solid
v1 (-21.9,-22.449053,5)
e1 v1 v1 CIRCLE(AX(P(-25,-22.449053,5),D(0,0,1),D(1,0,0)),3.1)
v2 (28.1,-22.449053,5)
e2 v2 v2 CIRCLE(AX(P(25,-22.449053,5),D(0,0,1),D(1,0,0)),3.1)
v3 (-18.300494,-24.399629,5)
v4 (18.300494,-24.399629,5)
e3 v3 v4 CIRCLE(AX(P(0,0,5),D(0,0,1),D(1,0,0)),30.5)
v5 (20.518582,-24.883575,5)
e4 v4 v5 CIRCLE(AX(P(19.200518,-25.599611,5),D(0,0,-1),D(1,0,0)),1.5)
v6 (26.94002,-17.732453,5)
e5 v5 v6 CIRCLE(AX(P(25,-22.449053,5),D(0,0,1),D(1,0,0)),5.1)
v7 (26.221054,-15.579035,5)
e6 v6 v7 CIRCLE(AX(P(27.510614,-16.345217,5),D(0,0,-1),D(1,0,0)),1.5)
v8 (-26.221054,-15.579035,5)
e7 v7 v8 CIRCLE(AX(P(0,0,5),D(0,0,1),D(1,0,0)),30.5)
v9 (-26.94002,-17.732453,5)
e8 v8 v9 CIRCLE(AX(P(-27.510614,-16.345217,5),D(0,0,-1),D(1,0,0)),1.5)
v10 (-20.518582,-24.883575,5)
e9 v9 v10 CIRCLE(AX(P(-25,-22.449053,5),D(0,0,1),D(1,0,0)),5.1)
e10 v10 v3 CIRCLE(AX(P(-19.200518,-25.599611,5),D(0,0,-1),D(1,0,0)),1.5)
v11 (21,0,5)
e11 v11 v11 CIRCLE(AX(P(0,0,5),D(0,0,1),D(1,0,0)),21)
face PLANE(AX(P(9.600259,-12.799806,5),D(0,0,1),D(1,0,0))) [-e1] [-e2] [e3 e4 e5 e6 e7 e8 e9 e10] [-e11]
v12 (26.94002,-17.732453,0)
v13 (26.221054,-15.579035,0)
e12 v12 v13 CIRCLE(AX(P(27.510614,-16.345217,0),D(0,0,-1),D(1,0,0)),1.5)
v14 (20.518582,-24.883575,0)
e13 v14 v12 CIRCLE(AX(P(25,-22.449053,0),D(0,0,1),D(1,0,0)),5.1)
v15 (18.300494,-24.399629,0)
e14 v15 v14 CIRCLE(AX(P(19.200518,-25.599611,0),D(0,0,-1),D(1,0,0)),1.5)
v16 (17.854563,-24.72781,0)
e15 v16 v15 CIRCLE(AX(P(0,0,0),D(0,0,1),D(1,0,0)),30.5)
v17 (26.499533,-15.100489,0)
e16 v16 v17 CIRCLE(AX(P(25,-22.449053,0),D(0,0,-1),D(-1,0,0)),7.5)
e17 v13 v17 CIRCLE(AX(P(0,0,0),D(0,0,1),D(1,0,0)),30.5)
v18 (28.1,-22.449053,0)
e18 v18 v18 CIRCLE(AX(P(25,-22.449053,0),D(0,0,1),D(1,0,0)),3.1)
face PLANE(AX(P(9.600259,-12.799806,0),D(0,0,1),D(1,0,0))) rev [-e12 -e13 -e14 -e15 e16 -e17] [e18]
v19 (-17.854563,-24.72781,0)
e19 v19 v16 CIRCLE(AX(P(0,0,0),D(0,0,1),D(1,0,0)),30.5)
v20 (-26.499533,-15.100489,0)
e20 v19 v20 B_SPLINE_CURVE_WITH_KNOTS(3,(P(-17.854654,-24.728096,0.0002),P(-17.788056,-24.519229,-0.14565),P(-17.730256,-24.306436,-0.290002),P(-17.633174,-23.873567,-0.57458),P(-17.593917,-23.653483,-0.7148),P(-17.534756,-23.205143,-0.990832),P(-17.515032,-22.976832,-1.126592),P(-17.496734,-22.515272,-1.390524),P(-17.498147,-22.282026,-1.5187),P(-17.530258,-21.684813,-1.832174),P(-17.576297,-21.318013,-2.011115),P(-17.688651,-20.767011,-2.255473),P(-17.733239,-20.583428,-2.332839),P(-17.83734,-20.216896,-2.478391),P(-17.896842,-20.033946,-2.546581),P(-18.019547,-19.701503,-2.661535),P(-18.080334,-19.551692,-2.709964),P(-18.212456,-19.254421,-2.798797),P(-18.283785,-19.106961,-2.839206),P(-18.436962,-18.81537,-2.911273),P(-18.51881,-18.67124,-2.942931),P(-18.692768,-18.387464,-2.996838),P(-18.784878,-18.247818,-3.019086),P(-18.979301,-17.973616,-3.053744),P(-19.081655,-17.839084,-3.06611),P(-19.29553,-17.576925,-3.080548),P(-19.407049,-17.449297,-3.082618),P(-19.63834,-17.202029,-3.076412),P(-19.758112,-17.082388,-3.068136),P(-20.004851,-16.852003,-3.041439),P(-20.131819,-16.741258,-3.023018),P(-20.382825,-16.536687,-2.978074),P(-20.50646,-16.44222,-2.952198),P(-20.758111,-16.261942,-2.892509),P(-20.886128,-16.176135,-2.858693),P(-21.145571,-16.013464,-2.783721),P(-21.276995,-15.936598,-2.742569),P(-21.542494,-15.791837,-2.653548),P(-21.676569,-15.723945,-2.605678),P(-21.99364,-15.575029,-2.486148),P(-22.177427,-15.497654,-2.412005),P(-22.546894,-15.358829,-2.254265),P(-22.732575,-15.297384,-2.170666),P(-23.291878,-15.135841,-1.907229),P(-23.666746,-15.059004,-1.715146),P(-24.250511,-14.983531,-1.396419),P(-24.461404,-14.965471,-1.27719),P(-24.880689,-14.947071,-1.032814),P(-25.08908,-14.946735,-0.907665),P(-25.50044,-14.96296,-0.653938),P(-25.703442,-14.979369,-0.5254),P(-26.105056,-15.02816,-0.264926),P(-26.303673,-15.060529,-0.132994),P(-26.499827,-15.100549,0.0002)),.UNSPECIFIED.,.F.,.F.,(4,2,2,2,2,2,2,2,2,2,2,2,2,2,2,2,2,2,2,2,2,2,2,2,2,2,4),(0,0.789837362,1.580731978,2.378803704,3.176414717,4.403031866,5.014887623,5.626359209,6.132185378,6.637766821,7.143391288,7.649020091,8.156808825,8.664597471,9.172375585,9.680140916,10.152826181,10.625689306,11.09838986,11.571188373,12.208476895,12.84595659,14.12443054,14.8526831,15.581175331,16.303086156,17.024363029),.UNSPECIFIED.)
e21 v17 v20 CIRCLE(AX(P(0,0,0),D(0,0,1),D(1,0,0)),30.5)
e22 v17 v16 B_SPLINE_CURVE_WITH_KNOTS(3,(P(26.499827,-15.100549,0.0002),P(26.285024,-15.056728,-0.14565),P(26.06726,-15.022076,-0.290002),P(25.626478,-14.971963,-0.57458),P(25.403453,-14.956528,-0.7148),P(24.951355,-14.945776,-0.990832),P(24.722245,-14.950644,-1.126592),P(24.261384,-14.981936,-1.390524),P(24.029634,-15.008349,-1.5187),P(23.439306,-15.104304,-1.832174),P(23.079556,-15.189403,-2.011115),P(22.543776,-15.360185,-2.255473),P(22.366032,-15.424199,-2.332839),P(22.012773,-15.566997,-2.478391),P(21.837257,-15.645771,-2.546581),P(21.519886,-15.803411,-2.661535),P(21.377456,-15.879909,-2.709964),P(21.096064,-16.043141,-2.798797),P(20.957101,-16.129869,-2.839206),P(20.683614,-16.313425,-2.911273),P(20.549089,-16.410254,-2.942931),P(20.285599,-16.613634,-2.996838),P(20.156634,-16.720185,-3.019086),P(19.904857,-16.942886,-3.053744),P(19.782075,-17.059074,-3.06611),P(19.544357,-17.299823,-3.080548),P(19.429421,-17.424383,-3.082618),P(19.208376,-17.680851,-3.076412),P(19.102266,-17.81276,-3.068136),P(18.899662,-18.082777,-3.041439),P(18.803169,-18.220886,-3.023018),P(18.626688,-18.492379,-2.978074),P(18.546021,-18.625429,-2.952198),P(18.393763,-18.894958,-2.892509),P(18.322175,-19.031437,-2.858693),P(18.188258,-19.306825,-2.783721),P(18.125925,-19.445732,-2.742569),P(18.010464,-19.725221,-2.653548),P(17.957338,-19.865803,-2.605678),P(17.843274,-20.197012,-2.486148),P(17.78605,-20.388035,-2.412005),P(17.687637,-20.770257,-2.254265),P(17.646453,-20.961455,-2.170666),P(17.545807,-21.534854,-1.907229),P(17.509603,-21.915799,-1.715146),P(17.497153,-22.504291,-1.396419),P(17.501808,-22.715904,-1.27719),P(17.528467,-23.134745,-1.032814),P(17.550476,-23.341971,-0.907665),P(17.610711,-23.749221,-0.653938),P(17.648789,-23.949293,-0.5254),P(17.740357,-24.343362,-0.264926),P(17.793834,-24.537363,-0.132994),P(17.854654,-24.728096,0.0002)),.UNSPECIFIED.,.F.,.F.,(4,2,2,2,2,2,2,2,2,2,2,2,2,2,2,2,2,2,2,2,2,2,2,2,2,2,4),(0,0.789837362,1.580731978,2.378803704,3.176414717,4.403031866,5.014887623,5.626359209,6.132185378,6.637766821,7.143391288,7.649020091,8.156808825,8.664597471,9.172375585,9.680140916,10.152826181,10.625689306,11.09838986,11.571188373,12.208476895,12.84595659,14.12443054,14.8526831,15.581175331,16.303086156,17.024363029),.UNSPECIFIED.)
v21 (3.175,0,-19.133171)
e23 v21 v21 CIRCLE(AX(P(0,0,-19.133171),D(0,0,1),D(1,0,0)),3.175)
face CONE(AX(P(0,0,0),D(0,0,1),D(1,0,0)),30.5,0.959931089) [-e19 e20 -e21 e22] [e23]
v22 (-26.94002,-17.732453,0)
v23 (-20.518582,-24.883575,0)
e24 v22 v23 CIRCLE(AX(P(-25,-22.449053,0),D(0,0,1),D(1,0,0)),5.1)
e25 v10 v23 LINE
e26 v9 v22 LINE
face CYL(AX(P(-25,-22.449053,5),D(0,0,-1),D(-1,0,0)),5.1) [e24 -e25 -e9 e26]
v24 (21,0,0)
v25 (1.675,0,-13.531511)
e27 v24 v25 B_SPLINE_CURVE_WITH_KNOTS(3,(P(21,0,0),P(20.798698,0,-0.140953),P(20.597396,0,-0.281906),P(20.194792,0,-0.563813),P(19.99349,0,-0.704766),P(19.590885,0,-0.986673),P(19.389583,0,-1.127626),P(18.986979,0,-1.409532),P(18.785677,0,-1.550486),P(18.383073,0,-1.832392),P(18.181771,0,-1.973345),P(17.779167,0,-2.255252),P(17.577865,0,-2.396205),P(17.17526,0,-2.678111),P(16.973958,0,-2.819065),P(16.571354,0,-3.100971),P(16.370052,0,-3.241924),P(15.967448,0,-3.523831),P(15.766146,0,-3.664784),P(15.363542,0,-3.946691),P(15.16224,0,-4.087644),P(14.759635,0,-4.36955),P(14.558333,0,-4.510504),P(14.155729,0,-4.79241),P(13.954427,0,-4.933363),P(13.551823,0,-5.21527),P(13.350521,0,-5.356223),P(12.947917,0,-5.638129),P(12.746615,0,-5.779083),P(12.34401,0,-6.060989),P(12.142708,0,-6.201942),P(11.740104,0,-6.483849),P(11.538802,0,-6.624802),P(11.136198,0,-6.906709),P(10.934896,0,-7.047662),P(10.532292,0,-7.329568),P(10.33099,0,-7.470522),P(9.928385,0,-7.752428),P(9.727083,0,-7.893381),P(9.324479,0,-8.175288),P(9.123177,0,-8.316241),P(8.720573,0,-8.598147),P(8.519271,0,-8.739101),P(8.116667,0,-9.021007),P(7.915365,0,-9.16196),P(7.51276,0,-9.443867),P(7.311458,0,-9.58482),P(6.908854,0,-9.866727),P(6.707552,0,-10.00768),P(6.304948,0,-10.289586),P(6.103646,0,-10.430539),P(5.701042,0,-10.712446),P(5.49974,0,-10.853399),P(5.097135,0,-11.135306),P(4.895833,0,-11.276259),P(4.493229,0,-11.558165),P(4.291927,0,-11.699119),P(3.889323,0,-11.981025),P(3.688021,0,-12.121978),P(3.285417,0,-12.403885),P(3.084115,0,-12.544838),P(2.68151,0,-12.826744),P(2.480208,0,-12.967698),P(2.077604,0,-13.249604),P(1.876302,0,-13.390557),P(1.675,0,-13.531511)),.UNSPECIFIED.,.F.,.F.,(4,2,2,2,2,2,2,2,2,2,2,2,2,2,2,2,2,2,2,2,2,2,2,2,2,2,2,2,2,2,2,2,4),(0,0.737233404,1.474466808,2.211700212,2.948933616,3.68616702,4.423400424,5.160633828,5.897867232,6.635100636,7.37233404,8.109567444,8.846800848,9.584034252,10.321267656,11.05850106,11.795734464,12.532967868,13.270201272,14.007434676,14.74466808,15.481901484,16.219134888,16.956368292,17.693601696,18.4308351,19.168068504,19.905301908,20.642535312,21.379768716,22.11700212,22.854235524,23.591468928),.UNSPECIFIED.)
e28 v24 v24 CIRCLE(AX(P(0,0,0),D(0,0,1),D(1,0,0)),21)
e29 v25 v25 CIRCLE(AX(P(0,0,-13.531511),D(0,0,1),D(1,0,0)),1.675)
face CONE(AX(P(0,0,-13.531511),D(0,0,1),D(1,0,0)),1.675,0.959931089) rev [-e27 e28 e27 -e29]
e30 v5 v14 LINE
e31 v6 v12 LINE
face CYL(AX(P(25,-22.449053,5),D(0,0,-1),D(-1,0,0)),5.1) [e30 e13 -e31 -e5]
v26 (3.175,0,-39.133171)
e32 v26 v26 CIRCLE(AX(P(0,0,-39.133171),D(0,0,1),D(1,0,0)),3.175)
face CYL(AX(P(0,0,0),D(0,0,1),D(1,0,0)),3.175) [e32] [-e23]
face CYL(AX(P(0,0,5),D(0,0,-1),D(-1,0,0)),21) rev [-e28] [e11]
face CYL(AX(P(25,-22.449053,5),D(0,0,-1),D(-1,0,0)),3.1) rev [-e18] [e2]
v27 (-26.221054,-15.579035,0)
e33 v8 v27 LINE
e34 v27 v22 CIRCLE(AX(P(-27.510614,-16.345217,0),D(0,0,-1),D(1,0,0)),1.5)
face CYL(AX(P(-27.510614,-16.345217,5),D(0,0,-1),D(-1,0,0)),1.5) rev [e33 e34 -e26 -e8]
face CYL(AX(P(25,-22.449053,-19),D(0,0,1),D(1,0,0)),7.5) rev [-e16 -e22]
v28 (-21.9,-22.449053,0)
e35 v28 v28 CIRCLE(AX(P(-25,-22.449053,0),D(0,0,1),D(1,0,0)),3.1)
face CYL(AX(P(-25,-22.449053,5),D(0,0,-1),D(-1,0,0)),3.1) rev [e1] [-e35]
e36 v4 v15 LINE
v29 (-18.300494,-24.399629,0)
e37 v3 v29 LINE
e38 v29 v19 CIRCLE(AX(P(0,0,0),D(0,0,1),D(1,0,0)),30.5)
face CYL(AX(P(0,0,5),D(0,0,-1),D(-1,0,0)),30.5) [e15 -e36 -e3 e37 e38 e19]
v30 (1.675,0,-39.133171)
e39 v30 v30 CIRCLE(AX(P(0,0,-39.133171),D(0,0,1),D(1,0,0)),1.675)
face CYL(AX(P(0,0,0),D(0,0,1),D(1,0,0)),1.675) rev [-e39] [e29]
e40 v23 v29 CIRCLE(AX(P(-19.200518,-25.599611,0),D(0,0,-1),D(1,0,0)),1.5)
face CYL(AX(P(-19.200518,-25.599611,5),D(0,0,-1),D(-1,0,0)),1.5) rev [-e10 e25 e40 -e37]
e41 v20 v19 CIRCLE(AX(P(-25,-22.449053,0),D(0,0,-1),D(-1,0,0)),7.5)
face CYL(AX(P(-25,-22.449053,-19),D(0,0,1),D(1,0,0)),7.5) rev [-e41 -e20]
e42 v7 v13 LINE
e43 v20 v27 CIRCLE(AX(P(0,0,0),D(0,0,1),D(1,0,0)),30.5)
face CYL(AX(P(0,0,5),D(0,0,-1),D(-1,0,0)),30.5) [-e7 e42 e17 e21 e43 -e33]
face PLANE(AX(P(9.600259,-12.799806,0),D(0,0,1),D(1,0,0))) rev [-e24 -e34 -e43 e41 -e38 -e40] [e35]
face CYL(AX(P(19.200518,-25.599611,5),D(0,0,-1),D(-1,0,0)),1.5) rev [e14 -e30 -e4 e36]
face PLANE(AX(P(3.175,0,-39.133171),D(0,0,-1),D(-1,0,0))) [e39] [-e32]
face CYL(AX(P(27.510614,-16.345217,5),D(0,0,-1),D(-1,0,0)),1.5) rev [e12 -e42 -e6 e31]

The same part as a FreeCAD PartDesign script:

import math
import FreeCAD as App
import Part
import Sketcher

V = App.Vector
Q = App.Units.Quantity


def add_polygon(sketch, points):
    """Adds a closed chain of lines whose ends are joined by coincident constraints."""
    first, n = sketch.GeometryCount, len(points)
    for a, b in zip(points, points[1:] + points[:1]):
        sketch.addGeometry(Part.LineSegment(App.Vector(*a, 0), App.Vector(*b, 0)), False)
    for i in range(n):
        sketch.addConstraint(Sketcher.Constraint("Coincident", first + i, 2, first + (i + 1) % n, 1))

doc = App.newDocument("Part")
body = doc.addObject("PartDesign::Body", "Body")

# Sketch on XY plane
sketch1 = body.newObject("Sketcher::SketchObject", "Sketch")
sketch1.AttachmentSupport = (doc.getObject("XY_Plane"), [""])
sketch1.MapMode = "FlatFace"
sketch1.addGeometry([
    Part.ArcOfCircle(Part.Circle(V(0, 0, 0), V(0, 0, 1), 30.5), math.radians(-30.716335), math.radians(210.716335)),  # 0
    Part.ArcOfCircle(Part.Circle(V(-27.510614, -16.345217, 0), V(0, 0, 1), 1.5), math.radians(-67.641783), math.radians(30.716335)),  # 1
    Part.ArcOfCircle(Part.Circle(V(-25, -22.449053, 0), V(0, 0, 1), 5.1), math.radians(112.358217), math.radians(331.48706)),  # 2
    Part.ArcOfCircle(Part.Circle(V(-19.200518, -25.599611, 0), V(0, 0, 1), 1.5), math.radians(53.128942), math.radians(151.48706)),  # 3
    Part.ArcOfCircle(Part.Circle(V(0, 0, 0), V(0, 0, 1), 30.5), math.radians(-126.871058), math.radians(-53.128942)),  # 4
    Part.ArcOfCircle(Part.Circle(V(19.200518, -25.599611, 0), V(0, 0, 1), 1.5), math.radians(28.51294), math.radians(126.871058)),  # 5
    Part.ArcOfCircle(Part.Circle(V(25, -22.449053, 0), V(0, 0, 1), 5.1), math.radians(-151.48706), math.radians(67.641783)),  # 6
    Part.ArcOfCircle(Part.Circle(V(27.510614, -16.345217, 0), V(0, 0, 1), 1.5), math.radians(149.283665), math.radians(247.641783)),  # 7
    Part.Circle(V(-25, -22.449053, 0), V(0, 0, 1), 3.1),  # 8
    Part.Circle(V(25, -22.449053, 0), V(0, 0, 1), 3.1),  # 9
    Part.Circle(V(0, 0, 0), V(0, 0, 1), 21),  # 10
], False)
sketch1.addConstraint([
    Sketcher.Constraint("Tangent", 0, 2, 1, 2),
    Sketcher.Constraint("Tangent", 1, 1, 2, 1),
    Sketcher.Constraint("Tangent", 2, 2, 3, 2),
    Sketcher.Constraint("Tangent", 3, 1, 4, 1),
    Sketcher.Constraint("Tangent", 4, 2, 5, 2),
    Sketcher.Constraint("Tangent", 5, 1, 6, 1),
    Sketcher.Constraint("Tangent", 6, 2, 7, 2),
    Sketcher.Constraint("Tangent", 7, 1, 0, 1),
    Sketcher.Constraint("Coincident", 0, 3, -1, 1),
    Sketcher.Constraint("Coincident", 4, 3, -1, 1),
    Sketcher.Constraint("Coincident", 10, 3, -1, 1),
    Sketcher.Constraint("Coincident", 8, 3, 2, 3),
    Sketcher.Constraint("Coincident", 9, 3, 6, 3),
    Sketcher.Constraint("Equal", 1, 3),
    Sketcher.Constraint("Equal", 0, 4),
    Sketcher.Constraint("Equal", 3, 5),
    Sketcher.Constraint("Equal", 2, 6),
    Sketcher.Constraint("Equal", 5, 7),
    Sketcher.Constraint("Equal", 8, 9),
    Sketcher.Constraint("Symmetric", 2, 3, 6, 3, -2),
    Sketcher.Constraint("Diameter", 10, Q("42 mm")),
    Sketcher.Constraint("Diameter", 8, Q("6.2 mm")),
    Sketcher.Constraint("Radius", 0, Q("30.5 mm")),
    Sketcher.Constraint("Radius", 1, Q("1.5 mm")),
    Sketcher.Constraint("Radius", 2, Q("5.1 mm")),
    Sketcher.Constraint("DistanceX", 2, 3, -1, 1, Q("25 mm")),
    Sketcher.Constraint("DistanceY", 2, 3, 1, 1, Q("4.716601 mm")),
])
pad1 = body.newObject("PartDesign::Pad", "Pad")
pad1.Profile = sketch1
pad1.Length = 5

# Sketch on XZ plane
sketch2 = body.newObject("Sketcher::SketchObject", "Sketch001")
sketch2.AttachmentSupport = (doc.getObject("XZ_Plane"), [""])
sketch2.MapMode = "FlatFace"
add_polygon(sketch2, [(30.5, 0), (3.175, -19.133171), (3.175, -39.133171), (1.675, -39.133171), (1.675, -13.531511), (21, 0)])  # lines 0-5
sketch2.addConstraint([
    Sketcher.Constraint("Vertical", 1),
    Sketcher.Constraint("Horizontal", 2),
    Sketcher.Constraint("Vertical", 3),
    Sketcher.Constraint("Horizontal", 5),
    Sketcher.Constraint("PointOnObject", 4, 2, -1),
    Sketcher.Constraint("Parallel", 0, 4),
    Sketcher.Constraint("DistanceY", 1, 2, 1, 1, Q("20 mm")),
    Sketcher.Constraint("Angle", 0, Q("-145 deg")),
    Sketcher.Constraint("DistanceX", 2, 2, 2, 1, Q("1.5 mm")),
    Sketcher.Constraint("DistanceX", 5, 1, 5, 2, Q("9.5 mm")),
    Sketcher.Constraint("DistanceX", -1, 1, 4, 2, Q("21 mm")),
    Sketcher.Constraint("DistanceX", -1, 1, 0, 2, Q("3.175 mm")),
])
revolution = body.newObject("PartDesign::Revolution", "Revolution")
revolution.Profile = sketch2
revolution.ReferenceAxis = (sketch2, ["V_Axis"])
revolution.Angle = 360

# Sketch on XY plane
sketch3 = body.newObject("Sketcher::SketchObject", "Sketch002")
sketch3.AttachmentSupport = (doc.getObject("XY_Plane"), [""])
sketch3.MapMode = "FlatFace"
sketch3.addGeometry([
    Part.Circle(V(25, -22.449053, 0), V(0, 0, 1), 7.5),
    Part.Circle(V(-25, -22.449053, 0), V(0, 0, 1), 7.5),
], False)
sketch3.addConstraint([
    Sketcher.Constraint("Equal", 0, 1),
    Sketcher.Constraint("Symmetric", 0, 3, 1, 3, -2),
    Sketcher.Constraint("Diameter", 0, Q("15 mm")),
    Sketcher.Constraint("DistanceX", -1, 1, 0, 3, Q("25 mm")),
    Sketcher.Constraint("DistanceY", 0, 3, -1, 1, Q("22.449053 mm")),
])
pocket1 = body.newObject("PartDesign::Pocket", "Pocket")
pocket1.Profile = sketch3
pocket1.Length = 19

doc.recompute()
